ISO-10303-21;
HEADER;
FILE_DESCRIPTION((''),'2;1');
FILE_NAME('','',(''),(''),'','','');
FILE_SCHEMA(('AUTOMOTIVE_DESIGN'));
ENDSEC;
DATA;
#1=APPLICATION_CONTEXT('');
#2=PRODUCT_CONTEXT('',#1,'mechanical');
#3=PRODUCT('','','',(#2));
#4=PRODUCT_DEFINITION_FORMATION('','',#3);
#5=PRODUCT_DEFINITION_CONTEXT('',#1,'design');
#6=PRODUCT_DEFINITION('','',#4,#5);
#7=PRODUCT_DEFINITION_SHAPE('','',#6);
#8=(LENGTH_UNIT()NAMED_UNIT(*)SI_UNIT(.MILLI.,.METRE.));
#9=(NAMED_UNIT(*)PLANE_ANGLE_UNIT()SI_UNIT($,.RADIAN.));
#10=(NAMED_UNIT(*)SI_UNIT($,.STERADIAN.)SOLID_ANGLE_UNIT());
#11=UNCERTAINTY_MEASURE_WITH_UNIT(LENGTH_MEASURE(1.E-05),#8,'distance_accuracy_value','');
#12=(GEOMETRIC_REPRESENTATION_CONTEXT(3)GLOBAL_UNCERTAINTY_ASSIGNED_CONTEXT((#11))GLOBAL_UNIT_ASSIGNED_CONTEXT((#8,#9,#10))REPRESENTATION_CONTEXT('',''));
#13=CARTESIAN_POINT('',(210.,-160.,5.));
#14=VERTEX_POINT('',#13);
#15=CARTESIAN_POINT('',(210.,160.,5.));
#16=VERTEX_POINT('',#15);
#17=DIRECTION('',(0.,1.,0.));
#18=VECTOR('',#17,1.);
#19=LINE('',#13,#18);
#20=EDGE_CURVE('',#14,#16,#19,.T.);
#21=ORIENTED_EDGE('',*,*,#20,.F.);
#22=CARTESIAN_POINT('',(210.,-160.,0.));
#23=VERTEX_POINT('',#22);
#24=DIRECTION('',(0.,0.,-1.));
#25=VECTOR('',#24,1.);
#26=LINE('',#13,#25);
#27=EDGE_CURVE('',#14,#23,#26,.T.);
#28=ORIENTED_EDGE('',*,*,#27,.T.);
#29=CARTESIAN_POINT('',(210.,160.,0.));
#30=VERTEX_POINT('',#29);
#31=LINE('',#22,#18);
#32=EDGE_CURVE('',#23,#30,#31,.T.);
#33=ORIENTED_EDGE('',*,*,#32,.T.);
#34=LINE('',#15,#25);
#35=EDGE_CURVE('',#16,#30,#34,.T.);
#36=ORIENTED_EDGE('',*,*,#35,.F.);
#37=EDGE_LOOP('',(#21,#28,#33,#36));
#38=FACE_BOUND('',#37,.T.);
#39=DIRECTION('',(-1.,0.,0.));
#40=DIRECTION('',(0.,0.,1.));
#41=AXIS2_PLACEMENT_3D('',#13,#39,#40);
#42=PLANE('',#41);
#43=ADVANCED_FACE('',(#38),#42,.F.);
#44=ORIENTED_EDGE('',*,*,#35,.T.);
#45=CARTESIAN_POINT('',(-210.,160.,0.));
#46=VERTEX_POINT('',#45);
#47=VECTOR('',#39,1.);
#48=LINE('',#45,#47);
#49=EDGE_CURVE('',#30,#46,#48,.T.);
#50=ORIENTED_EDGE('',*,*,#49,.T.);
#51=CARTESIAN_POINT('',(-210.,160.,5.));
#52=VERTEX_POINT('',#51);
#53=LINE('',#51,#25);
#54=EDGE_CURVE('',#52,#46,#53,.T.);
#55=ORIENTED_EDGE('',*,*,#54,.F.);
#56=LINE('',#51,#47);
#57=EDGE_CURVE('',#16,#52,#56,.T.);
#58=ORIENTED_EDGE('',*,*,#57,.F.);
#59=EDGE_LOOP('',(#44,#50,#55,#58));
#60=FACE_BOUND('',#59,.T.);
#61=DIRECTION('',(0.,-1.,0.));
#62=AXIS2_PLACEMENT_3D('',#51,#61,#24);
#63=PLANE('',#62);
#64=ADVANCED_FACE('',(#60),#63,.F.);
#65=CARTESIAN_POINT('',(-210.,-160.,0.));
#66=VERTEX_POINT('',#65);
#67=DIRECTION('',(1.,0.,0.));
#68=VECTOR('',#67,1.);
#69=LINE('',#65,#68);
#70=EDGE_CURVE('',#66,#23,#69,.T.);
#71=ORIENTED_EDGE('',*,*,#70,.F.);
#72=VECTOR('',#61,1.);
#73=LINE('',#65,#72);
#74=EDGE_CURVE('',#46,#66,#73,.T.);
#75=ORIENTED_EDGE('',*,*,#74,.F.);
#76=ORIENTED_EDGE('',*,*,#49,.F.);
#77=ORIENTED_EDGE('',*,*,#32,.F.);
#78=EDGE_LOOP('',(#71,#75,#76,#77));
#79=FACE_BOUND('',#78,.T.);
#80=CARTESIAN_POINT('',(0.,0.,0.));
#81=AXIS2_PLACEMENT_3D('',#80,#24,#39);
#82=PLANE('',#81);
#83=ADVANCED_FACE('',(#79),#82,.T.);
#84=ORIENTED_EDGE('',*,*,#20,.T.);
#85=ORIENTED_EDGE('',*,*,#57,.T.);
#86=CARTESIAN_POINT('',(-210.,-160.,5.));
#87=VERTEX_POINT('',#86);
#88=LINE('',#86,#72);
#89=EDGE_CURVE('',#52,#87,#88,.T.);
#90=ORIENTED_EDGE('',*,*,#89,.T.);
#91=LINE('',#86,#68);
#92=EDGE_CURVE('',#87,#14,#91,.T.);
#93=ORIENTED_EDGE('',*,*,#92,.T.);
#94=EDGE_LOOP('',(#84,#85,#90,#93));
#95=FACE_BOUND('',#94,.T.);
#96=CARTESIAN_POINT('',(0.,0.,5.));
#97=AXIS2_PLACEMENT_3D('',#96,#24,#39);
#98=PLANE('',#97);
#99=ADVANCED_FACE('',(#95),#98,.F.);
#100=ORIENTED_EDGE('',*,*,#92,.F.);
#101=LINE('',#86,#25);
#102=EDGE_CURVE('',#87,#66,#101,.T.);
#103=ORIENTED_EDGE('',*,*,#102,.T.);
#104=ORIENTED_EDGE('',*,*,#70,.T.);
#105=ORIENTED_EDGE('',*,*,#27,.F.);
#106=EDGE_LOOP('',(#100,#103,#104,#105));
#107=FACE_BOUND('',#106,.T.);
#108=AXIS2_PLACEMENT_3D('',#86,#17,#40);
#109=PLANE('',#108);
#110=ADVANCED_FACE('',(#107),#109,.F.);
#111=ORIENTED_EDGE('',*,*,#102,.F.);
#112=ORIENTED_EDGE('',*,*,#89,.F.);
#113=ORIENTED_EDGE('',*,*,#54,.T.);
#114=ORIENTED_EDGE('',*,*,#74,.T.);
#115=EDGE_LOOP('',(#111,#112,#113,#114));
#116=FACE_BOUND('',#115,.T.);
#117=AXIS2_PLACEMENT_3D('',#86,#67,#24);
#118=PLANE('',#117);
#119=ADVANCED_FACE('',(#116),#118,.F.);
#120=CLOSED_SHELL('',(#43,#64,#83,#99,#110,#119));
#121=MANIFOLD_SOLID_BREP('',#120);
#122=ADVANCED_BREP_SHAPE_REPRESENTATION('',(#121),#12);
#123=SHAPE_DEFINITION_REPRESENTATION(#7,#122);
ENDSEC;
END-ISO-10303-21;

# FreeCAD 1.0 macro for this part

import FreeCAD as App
import Part
import Sketcher


def add_polygon(sketch, points):
    """Adds a closed chain of lines whose ends are joined by coincident constraints."""
    first, n = sketch.GeometryCount, len(points)
    for a, b in zip(points, points[1:] + points[:1]):
        sketch.addGeometry(Part.LineSegment(App.Vector(*a, 0), App.Vector(*b, 0)), False)
    for i in range(n):
        sketch.addConstraint(Sketcher.Constraint("Coincident", first + i, 2, first + (i + 1) % n, 1))

doc = App.newDocument("Part")
body = doc.addObject("PartDesign::Body", "Body")

# Sketch on XY plane
sketch1 = body.newObject("Sketcher::SketchObject", "Sketch")
sketch1.AttachmentSupport = (doc.getObject("XY_Plane"), [""])
sketch1.MapMode = "FlatFace"
add_polygon(sketch1, [(-210, 160), (-210, -160), (210, -160), (210, 160)])  # lines 0-3
sketch1.addConstraint([
    Sketcher.Constraint("Vertical", 0),
    Sketcher.Constraint("Horizontal", 1),
    Sketcher.Constraint("Vertical", 2),
    Sketcher.Constraint("Horizontal", 3),
    Sketcher.Constraint("Symmetric", 0, 2, 2, 2, -1, 1),
    Sketcher.Constraint("DistanceX", 1, 1, 1, 2, 420.0),
    Sketcher.Constraint("DistanceY", 0, 2, 0, 1, 320.0),
])
pad1 = body.newObject("PartDesign::Pad", "Pad")
pad1.Profile = sketch1
pad1.Length = 5

doc.recompute()
